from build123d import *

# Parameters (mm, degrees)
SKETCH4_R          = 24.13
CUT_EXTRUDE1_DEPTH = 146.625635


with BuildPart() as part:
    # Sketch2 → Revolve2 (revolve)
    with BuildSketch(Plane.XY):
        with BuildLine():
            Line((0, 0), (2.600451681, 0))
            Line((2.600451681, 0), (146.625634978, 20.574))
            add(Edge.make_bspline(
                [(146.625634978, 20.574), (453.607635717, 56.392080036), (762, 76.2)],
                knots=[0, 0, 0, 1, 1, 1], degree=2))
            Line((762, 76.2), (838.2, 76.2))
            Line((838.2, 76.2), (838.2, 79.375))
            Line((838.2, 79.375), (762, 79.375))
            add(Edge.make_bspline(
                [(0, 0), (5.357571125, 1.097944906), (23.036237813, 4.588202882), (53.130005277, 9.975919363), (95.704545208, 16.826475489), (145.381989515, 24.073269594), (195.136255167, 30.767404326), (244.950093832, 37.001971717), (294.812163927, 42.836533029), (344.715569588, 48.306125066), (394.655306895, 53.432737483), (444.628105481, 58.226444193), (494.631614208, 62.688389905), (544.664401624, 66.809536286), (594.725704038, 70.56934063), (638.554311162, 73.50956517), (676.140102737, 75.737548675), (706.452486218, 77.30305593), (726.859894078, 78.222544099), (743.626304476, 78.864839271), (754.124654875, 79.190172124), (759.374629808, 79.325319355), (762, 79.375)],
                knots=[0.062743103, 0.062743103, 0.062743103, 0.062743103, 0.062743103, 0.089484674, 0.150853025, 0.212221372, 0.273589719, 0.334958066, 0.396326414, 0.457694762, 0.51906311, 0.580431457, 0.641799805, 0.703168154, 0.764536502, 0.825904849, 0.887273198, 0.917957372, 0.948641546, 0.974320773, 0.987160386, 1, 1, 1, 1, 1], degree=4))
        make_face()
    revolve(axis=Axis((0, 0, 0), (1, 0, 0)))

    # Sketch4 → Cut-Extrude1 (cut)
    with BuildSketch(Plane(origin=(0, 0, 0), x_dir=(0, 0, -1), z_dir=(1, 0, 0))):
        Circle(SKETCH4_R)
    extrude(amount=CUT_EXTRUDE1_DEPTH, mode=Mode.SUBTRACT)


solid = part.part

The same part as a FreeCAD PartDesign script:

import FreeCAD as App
import Part
import Sketcher
from FreeCAD import Vector
Q = App.Units.Quantity

doc = App.newDocument("Part")
params = doc.addObject("Spreadsheet::Sheet", "Params")
for row, (alias, value) in enumerate([
    ("sketch1_width", "3 in"),
    ("revolution_angle", "360 deg"),
    ("sketch2_diameter", "1.9 in"),
    ("pocket1_length", "146.625635 mm"),
], start=1):
    params.set(f"A{row}", alias)
    params.set(f"B{row}", "=" + value)
    params.setAlias(f"B{row}", alias)

body = doc.addObject("PartDesign::Body", "Body")

sketch1 = doc.addObject("Sketcher::SketchObject", "Sketch")
body.addObject(sketch1)
sketch1.AttachmentSupport = (doc.XY_Plane, [""])
sketch1.MapMode = "FlatFace"
sketch1.addGeometry([
    Part.LineSegment(Vector(0, 0, 0), Vector(2.600452, 0, 0)),
    Part.LineSegment(Vector(2.600452, 0, 0), Vector(146.625635, 20.574, 0)),
    Part.BSplineCurve([Vector(146.625635, 20.574, 0), Vector(453.607636, 56.39208, 0), Vector(762, 76.2, 0)], [3, 3], [0, 1], False, 2, [1, 1, 1], False),
    Part.LineSegment(Vector(762, 76.2, 0), Vector(838.2, 76.2, 0)),
    Part.LineSegment(Vector(838.2, 76.2, 0), Vector(838.2, 79.375, 0)),
    Part.LineSegment(Vector(838.2, 79.375, 0), Vector(762, 79.375, 0)),
    Part.BSplineCurve([Vector(0, 0, 0), Vector(5.357571, 1.097945, 0), Vector(23.036238, 4.588203, 0), Vector(53.130005, 9.975919, 0), Vector(95.704545, 16.826475, 0), Vector(145.38199, 24.07327, 0), Vector(195.136255, 30.767404, 0), Vector(244.950094, 37.001972, 0), Vector(294.812164, 42.836533, 0), Vector(344.71557, 48.306125, 0), Vector(394.655307, 53.432737, 0), Vector(444.628105, 58.226444, 0), Vector(494.631614, 62.68839, 0), Vector(544.664402, 66.809536, 0), Vector(594.725704, 70.569341, 0), Vector(638.554311, 73.509565, 0), Vector(676.140103, 75.737549, 0), Vector(706.452486, 77.303056, 0), Vector(726.859894, 78.222544, 0), Vector(743.626304, 78.864839, 0), Vector(754.124655, 79.190172, 0), Vector(759.37463, 79.325319, 0), Vector(762, 79.375, 0)], [5, 1, 1, 1, 1, 1, 1, 1, 1, 1, 1, 1, 1, 1, 1, 1, 1, 1, 1, 5], [0.062743103, 0.089484674, 0.150853025, 0.212221372, 0.273589719, 0.334958066, 0.396326414, 0.457694762, 0.51906311, 0.580431457, 0.641799805, 0.703168154, 0.764536502, 0.825904849, 0.887273198, 0.917957372, 0.948641546, 0.974320773, 0.987160386, 1], False, 4, [1, 1, 1, 1, 1, 1, 1, 1, 1, 1, 1, 1, 1, 1, 1, 1, 1, 1, 1, 1, 1, 1, 1], False),
], False)
sketch1.addConstraint([
    Sketcher.Constraint("Block", 2),
    Sketcher.Constraint("Block", 6),
    Sketcher.Constraint("Coincident", 0, 2, 1, 1),
    Sketcher.Constraint("Coincident", 1, 2, 2, 1),
    Sketcher.Constraint("Coincident", 2, 2, 3, 1),
    Sketcher.Constraint("Coincident", 3, 2, 4, 1),
    Sketcher.Constraint("Coincident", 4, 2, 5, 1),
    Sketcher.Constraint("Coincident", 5, 2, 6, 2),
    Sketcher.Constraint("Coincident", 6, 1, 0, 1),
    Sketcher.Constraint("Horizontal", 0),
    Sketcher.Constraint("Horizontal", 3),
    Sketcher.Constraint("Vertical", 4),
    Sketcher.Constraint("Horizontal", 5),
    Sketcher.Constraint("DistanceX", 3, 1, 3, 2, Q("3 in")),
    Sketcher.Constraint("DistanceX", 0, 1, 0, 2, 2.600452),
])
sketch1.setExpression("Constraints[13]", "Params.sketch1_width")
revolution = doc.addObject("PartDesign::Revolution", "Revolution")
body.addObject(revolution)
revolution.Profile = sketch1
revolution.ReferenceAxis = (sketch1, ["H_Axis"])
revolution.setExpression("Angle", "Params.revolution_angle")

sketch2 = doc.addObject("Sketcher::SketchObject", "Sketch001")
body.addObject(sketch2)
sketch2.AttachmentSupport = (doc.YZ_Plane, [""])
sketch2.MapMode = "FlatFace"
sketch2.addGeometry(Part.Circle(Vector(0, 0, 0), Vector(0, 0, 1), 24), False)
sketch2.addConstraint([
    Sketcher.Constraint("Coincident", 0, 3, -1, 1),
    Sketcher.Constraint("Diameter", 0, Q("1.9 in")),
])
sketch2.setExpression("Constraints[1]", "Params.sketch2_diameter")
pocket1 = doc.addObject("PartDesign::Pocket", "Pocket")
body.addObject(pocket1)
pocket1.Profile = sketch2
pocket1.setExpression("Length", "Params.pocket1_length")
pocket1.Reversed = True

doc.recompute()
